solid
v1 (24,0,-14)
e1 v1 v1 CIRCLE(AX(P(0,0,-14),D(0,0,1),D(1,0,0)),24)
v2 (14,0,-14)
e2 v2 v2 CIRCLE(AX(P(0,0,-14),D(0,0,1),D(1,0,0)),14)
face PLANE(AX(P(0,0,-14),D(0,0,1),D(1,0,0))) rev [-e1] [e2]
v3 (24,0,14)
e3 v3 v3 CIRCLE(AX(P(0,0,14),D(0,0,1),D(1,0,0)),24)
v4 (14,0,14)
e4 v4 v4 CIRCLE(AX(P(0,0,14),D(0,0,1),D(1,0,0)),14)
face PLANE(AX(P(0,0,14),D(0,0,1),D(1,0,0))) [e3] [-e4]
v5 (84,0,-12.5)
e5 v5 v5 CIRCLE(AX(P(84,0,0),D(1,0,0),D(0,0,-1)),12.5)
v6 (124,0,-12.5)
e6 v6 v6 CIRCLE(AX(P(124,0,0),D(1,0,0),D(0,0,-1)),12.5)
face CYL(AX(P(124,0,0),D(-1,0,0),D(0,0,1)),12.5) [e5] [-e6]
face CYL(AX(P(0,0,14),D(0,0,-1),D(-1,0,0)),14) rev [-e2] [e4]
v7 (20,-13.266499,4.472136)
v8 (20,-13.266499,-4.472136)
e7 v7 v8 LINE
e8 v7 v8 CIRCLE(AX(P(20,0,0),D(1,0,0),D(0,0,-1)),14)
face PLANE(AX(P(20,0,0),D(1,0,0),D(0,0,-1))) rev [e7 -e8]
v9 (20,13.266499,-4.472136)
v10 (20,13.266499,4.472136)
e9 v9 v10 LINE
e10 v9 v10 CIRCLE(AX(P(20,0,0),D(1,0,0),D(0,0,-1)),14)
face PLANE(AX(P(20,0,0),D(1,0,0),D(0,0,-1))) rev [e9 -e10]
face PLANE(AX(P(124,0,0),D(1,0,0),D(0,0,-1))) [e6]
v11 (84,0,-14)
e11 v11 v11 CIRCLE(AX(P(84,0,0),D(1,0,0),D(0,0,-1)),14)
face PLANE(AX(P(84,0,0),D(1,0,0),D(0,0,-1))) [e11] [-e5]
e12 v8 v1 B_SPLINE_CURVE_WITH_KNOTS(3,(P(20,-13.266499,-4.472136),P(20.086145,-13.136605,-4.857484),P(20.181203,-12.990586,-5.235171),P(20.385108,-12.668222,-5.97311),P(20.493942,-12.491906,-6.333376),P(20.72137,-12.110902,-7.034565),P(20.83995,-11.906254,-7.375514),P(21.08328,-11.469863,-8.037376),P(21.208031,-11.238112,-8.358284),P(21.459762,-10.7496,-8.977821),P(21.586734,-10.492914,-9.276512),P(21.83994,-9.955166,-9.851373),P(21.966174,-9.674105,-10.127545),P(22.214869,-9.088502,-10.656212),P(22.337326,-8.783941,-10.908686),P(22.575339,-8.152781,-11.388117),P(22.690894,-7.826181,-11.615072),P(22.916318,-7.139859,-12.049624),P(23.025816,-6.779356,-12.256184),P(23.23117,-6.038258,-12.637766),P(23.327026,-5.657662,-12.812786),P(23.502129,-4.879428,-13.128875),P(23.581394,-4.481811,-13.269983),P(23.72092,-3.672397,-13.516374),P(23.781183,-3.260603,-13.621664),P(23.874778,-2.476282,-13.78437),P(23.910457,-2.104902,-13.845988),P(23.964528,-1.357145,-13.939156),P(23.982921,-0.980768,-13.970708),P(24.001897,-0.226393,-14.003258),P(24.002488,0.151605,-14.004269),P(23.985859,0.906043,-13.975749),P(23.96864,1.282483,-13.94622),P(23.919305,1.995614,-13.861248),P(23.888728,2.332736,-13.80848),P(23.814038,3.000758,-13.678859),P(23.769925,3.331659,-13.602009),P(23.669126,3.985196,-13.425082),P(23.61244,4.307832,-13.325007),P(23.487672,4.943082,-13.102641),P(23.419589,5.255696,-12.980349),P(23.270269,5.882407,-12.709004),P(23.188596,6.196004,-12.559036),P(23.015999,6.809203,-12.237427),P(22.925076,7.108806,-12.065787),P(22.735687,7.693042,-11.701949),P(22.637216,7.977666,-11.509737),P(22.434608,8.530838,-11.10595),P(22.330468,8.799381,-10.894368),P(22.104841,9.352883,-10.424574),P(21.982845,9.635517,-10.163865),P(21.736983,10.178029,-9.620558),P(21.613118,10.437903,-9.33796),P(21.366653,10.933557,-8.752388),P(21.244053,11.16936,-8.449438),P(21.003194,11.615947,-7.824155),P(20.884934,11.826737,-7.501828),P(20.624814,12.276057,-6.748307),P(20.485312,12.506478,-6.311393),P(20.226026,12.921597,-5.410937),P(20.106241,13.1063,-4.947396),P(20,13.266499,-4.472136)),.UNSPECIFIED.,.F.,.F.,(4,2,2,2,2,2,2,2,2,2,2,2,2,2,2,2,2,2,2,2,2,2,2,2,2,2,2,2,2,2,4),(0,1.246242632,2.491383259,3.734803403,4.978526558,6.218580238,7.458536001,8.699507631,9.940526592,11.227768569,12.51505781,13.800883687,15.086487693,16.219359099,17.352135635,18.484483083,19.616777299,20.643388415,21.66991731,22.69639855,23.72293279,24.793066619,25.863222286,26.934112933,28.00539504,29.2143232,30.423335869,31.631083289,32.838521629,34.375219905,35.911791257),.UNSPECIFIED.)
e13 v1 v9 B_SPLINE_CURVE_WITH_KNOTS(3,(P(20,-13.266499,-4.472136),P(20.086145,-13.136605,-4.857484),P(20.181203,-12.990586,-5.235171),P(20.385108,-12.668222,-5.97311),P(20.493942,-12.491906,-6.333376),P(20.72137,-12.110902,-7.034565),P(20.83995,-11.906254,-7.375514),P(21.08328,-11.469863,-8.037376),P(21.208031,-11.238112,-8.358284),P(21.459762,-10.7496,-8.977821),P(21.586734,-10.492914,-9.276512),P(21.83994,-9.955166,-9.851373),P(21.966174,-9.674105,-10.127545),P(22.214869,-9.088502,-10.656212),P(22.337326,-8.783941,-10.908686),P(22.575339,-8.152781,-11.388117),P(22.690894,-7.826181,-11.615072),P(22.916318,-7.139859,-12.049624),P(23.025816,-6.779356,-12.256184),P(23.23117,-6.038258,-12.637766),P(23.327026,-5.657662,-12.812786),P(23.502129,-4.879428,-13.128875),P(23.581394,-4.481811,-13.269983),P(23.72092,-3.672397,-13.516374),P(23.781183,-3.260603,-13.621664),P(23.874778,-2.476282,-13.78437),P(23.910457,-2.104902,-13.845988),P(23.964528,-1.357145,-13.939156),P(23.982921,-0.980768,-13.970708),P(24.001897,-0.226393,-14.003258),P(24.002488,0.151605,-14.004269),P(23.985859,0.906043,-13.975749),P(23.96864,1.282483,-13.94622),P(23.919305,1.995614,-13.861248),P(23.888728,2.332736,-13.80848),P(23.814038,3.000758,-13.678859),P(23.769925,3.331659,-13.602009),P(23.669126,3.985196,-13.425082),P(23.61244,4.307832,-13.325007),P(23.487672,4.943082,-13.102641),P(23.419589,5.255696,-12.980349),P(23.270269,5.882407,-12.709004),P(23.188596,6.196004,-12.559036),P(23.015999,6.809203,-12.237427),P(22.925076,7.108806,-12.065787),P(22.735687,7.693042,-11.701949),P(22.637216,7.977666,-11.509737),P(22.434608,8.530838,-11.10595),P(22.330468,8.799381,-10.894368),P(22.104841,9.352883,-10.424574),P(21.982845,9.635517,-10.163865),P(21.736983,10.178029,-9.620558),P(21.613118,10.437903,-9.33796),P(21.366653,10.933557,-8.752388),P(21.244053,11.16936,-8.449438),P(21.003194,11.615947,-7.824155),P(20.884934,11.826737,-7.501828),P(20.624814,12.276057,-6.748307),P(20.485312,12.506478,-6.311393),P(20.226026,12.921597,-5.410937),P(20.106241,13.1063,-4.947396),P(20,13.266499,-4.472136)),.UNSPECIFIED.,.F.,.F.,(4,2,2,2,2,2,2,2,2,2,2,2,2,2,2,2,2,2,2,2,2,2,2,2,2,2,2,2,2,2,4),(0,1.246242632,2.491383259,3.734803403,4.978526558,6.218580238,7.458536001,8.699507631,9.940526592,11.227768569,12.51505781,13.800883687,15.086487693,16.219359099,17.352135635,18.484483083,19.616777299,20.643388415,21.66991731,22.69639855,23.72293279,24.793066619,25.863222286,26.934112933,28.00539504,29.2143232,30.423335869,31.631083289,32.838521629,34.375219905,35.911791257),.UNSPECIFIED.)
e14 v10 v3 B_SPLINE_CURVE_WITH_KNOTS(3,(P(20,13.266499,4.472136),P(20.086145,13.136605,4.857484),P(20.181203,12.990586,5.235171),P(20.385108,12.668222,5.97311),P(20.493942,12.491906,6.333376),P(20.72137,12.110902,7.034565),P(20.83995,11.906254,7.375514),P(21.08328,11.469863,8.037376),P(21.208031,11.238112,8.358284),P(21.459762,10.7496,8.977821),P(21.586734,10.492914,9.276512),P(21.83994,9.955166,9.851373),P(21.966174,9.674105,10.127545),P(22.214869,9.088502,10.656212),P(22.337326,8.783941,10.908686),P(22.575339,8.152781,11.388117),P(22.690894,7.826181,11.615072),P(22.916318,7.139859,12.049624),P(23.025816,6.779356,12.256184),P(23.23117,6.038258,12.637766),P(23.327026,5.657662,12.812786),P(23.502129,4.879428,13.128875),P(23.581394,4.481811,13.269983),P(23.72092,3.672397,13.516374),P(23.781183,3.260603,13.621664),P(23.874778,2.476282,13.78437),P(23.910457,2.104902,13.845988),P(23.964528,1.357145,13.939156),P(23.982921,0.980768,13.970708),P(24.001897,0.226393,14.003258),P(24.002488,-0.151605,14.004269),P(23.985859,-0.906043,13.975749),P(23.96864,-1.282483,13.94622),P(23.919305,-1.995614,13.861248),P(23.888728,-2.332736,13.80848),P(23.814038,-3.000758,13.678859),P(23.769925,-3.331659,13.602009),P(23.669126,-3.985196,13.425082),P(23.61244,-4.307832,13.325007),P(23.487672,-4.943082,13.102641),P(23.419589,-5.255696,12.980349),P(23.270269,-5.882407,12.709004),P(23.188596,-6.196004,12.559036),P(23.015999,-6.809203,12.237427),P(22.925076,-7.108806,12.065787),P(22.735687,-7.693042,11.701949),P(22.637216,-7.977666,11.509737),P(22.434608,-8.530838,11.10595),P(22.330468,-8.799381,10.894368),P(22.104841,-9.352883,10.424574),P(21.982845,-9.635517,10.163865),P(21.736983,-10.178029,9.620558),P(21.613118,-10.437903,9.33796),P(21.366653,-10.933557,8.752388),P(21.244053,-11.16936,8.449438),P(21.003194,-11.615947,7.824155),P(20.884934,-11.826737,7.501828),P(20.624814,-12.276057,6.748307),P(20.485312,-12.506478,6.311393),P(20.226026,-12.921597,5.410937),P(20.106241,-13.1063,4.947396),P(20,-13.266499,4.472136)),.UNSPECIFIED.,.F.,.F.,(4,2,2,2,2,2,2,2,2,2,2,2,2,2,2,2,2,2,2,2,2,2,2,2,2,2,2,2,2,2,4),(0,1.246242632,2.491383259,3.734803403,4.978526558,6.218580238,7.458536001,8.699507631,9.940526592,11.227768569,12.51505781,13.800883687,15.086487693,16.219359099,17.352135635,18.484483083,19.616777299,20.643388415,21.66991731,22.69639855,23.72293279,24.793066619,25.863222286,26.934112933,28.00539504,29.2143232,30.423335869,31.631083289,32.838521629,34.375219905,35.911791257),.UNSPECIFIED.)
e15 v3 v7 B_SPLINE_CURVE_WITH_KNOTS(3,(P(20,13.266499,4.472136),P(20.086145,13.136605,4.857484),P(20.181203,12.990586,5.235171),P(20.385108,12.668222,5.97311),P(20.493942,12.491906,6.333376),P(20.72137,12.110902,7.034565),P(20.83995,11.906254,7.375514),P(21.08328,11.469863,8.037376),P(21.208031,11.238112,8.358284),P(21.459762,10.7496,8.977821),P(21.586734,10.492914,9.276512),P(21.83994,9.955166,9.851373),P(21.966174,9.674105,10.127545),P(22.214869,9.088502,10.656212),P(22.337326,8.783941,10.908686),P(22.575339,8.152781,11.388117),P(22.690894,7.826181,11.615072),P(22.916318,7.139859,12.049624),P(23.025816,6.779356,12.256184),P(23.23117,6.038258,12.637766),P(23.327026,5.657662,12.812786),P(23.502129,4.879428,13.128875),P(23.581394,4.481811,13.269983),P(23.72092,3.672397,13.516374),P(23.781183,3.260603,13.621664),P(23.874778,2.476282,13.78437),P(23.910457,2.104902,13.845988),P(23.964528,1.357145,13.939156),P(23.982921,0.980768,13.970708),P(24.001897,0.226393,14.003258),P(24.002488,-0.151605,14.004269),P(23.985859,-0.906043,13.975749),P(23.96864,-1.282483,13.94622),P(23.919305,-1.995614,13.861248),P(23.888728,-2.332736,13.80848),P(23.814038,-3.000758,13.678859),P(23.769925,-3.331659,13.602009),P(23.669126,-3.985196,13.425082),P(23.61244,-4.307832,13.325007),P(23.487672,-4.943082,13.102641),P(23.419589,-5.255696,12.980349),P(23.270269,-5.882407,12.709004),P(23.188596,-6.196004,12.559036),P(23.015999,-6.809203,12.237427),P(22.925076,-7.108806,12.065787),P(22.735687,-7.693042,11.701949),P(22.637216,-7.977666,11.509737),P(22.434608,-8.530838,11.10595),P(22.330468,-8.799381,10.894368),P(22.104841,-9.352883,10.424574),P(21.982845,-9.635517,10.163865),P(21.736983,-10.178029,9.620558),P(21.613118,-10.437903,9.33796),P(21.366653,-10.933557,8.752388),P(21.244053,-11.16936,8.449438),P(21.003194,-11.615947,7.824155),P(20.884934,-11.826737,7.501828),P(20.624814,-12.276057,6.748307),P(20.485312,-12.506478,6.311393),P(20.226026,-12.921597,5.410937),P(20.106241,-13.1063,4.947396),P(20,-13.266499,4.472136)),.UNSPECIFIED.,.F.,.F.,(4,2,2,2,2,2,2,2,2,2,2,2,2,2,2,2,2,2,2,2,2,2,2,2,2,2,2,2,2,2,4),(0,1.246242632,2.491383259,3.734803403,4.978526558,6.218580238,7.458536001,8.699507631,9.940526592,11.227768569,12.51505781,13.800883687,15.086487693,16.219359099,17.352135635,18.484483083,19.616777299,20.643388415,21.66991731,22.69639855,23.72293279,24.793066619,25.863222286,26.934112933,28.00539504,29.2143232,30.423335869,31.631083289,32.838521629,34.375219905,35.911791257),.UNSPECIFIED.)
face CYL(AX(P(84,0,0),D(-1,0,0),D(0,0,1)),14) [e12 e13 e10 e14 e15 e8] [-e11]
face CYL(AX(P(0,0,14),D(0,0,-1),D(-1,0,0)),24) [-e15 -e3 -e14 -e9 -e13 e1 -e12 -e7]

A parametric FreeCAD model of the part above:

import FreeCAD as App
import Part
import Sketcher
Q = App.Units.Quantity

doc = App.newDocument("Part")
params = doc.addObject("Spreadsheet::Sheet", "Params")
for row, (alias, value) in enumerate([
    ("sketch1_diameter", "48 mm"),
    ("sketch1_diameter2", "28 mm"),
    ("pad1_length", "28 mm"),
    ("sketch2_diameter", "28 mm"),
    ("pad2_length", "64 mm"),
    ("sketch3_diameter", "25 mm"),
    ("pad3_length", "40 mm"),
], start=1):
    params.set(f"A{row}", alias)
    params.set(f"B{row}", "=" + value)
    params.setAlias(f"B{row}", alias)

body = doc.addObject("PartDesign::Body", "Body")

sketch1 = body.newObject("Sketcher::SketchObject", "Sketch")
sketch1.AttachmentSupport = (doc.getObject("XY_Plane"), [""])
sketch1.MapMode = "FlatFace"
sketch1.addGeometry([
    Part.Circle(App.Vector(0, 0, 0), App.Vector(0, 0, 1), 24),
    Part.Circle(App.Vector(0, 0, 0), App.Vector(0, 0, 1), 14),
], False)
sketch1.addConstraint([
    Sketcher.Constraint("Coincident", 0, 3, -1, 1),
    Sketcher.Constraint("Coincident", 1, 3, -1, 1),
    Sketcher.Constraint("Diameter", 0, Q("48 mm")),
    Sketcher.Constraint("Diameter", 1, Q("28 mm")),
])
sketch1.setExpression("Constraints[2]", "Params.sketch1_diameter")
sketch1.setExpression("Constraints[3]", "Params.sketch1_diameter2")
pad1 = body.newObject("PartDesign::Pad", "Pad")
pad1.Profile = sketch1
pad1.setExpression("Length", "Params.pad1_length")
pad1.Midplane = True

sketch2 = body.newObject("Sketcher::SketchObject", "Sketch001")
sketch2.AttachmentSupport = (doc.getObject("YZ_Plane"), [""])
sketch2.MapMode = "FlatFace"
sketch2.AttachmentOffset = App.Placement(App.Vector(0, 0, 20), App.Rotation())
sketch2.addGeometry(Part.Circle(App.Vector(0, 0, 0), App.Vector(0, 0, 1), 14), False)
sketch2.addConstraint([
    Sketcher.Constraint("Coincident", 0, 3, -1, 1),
    Sketcher.Constraint("Diameter", 0, Q("28 mm")),
])
sketch2.setExpression("Constraints[1]", "Params.sketch2_diameter")
pad2 = body.newObject("PartDesign::Pad", "Pad001")
pad2.Profile = sketch2
pad2.setExpression("Length", "Params.pad2_length")

sketch3 = body.newObject("Sketcher::SketchObject", "Sketch002")
sketch3.AttachmentSupport = (doc.getObject("YZ_Plane"), [""])
sketch3.MapMode = "FlatFace"
sketch3.AttachmentOffset = App.Placement(App.Vector(0, 0, 84), App.Rotation())
sketch3.addGeometry(Part.Circle(App.Vector(0, 0, 0), App.Vector(0, 0, 1), 12.5), False)
sketch3.addConstraint([
    Sketcher.Constraint("Coincident", 0, 3, -1, 1),
    Sketcher.Constraint("Diameter", 0, Q("25 mm")),
])
sketch3.setExpression("Constraints[1]", "Params.sketch3_diameter")
pad3 = body.newObject("PartDesign::Pad", "Pad002")
pad3.Profile = sketch3
pad3.setExpression("Length", "Params.pad3_length")

doc.recompute()
